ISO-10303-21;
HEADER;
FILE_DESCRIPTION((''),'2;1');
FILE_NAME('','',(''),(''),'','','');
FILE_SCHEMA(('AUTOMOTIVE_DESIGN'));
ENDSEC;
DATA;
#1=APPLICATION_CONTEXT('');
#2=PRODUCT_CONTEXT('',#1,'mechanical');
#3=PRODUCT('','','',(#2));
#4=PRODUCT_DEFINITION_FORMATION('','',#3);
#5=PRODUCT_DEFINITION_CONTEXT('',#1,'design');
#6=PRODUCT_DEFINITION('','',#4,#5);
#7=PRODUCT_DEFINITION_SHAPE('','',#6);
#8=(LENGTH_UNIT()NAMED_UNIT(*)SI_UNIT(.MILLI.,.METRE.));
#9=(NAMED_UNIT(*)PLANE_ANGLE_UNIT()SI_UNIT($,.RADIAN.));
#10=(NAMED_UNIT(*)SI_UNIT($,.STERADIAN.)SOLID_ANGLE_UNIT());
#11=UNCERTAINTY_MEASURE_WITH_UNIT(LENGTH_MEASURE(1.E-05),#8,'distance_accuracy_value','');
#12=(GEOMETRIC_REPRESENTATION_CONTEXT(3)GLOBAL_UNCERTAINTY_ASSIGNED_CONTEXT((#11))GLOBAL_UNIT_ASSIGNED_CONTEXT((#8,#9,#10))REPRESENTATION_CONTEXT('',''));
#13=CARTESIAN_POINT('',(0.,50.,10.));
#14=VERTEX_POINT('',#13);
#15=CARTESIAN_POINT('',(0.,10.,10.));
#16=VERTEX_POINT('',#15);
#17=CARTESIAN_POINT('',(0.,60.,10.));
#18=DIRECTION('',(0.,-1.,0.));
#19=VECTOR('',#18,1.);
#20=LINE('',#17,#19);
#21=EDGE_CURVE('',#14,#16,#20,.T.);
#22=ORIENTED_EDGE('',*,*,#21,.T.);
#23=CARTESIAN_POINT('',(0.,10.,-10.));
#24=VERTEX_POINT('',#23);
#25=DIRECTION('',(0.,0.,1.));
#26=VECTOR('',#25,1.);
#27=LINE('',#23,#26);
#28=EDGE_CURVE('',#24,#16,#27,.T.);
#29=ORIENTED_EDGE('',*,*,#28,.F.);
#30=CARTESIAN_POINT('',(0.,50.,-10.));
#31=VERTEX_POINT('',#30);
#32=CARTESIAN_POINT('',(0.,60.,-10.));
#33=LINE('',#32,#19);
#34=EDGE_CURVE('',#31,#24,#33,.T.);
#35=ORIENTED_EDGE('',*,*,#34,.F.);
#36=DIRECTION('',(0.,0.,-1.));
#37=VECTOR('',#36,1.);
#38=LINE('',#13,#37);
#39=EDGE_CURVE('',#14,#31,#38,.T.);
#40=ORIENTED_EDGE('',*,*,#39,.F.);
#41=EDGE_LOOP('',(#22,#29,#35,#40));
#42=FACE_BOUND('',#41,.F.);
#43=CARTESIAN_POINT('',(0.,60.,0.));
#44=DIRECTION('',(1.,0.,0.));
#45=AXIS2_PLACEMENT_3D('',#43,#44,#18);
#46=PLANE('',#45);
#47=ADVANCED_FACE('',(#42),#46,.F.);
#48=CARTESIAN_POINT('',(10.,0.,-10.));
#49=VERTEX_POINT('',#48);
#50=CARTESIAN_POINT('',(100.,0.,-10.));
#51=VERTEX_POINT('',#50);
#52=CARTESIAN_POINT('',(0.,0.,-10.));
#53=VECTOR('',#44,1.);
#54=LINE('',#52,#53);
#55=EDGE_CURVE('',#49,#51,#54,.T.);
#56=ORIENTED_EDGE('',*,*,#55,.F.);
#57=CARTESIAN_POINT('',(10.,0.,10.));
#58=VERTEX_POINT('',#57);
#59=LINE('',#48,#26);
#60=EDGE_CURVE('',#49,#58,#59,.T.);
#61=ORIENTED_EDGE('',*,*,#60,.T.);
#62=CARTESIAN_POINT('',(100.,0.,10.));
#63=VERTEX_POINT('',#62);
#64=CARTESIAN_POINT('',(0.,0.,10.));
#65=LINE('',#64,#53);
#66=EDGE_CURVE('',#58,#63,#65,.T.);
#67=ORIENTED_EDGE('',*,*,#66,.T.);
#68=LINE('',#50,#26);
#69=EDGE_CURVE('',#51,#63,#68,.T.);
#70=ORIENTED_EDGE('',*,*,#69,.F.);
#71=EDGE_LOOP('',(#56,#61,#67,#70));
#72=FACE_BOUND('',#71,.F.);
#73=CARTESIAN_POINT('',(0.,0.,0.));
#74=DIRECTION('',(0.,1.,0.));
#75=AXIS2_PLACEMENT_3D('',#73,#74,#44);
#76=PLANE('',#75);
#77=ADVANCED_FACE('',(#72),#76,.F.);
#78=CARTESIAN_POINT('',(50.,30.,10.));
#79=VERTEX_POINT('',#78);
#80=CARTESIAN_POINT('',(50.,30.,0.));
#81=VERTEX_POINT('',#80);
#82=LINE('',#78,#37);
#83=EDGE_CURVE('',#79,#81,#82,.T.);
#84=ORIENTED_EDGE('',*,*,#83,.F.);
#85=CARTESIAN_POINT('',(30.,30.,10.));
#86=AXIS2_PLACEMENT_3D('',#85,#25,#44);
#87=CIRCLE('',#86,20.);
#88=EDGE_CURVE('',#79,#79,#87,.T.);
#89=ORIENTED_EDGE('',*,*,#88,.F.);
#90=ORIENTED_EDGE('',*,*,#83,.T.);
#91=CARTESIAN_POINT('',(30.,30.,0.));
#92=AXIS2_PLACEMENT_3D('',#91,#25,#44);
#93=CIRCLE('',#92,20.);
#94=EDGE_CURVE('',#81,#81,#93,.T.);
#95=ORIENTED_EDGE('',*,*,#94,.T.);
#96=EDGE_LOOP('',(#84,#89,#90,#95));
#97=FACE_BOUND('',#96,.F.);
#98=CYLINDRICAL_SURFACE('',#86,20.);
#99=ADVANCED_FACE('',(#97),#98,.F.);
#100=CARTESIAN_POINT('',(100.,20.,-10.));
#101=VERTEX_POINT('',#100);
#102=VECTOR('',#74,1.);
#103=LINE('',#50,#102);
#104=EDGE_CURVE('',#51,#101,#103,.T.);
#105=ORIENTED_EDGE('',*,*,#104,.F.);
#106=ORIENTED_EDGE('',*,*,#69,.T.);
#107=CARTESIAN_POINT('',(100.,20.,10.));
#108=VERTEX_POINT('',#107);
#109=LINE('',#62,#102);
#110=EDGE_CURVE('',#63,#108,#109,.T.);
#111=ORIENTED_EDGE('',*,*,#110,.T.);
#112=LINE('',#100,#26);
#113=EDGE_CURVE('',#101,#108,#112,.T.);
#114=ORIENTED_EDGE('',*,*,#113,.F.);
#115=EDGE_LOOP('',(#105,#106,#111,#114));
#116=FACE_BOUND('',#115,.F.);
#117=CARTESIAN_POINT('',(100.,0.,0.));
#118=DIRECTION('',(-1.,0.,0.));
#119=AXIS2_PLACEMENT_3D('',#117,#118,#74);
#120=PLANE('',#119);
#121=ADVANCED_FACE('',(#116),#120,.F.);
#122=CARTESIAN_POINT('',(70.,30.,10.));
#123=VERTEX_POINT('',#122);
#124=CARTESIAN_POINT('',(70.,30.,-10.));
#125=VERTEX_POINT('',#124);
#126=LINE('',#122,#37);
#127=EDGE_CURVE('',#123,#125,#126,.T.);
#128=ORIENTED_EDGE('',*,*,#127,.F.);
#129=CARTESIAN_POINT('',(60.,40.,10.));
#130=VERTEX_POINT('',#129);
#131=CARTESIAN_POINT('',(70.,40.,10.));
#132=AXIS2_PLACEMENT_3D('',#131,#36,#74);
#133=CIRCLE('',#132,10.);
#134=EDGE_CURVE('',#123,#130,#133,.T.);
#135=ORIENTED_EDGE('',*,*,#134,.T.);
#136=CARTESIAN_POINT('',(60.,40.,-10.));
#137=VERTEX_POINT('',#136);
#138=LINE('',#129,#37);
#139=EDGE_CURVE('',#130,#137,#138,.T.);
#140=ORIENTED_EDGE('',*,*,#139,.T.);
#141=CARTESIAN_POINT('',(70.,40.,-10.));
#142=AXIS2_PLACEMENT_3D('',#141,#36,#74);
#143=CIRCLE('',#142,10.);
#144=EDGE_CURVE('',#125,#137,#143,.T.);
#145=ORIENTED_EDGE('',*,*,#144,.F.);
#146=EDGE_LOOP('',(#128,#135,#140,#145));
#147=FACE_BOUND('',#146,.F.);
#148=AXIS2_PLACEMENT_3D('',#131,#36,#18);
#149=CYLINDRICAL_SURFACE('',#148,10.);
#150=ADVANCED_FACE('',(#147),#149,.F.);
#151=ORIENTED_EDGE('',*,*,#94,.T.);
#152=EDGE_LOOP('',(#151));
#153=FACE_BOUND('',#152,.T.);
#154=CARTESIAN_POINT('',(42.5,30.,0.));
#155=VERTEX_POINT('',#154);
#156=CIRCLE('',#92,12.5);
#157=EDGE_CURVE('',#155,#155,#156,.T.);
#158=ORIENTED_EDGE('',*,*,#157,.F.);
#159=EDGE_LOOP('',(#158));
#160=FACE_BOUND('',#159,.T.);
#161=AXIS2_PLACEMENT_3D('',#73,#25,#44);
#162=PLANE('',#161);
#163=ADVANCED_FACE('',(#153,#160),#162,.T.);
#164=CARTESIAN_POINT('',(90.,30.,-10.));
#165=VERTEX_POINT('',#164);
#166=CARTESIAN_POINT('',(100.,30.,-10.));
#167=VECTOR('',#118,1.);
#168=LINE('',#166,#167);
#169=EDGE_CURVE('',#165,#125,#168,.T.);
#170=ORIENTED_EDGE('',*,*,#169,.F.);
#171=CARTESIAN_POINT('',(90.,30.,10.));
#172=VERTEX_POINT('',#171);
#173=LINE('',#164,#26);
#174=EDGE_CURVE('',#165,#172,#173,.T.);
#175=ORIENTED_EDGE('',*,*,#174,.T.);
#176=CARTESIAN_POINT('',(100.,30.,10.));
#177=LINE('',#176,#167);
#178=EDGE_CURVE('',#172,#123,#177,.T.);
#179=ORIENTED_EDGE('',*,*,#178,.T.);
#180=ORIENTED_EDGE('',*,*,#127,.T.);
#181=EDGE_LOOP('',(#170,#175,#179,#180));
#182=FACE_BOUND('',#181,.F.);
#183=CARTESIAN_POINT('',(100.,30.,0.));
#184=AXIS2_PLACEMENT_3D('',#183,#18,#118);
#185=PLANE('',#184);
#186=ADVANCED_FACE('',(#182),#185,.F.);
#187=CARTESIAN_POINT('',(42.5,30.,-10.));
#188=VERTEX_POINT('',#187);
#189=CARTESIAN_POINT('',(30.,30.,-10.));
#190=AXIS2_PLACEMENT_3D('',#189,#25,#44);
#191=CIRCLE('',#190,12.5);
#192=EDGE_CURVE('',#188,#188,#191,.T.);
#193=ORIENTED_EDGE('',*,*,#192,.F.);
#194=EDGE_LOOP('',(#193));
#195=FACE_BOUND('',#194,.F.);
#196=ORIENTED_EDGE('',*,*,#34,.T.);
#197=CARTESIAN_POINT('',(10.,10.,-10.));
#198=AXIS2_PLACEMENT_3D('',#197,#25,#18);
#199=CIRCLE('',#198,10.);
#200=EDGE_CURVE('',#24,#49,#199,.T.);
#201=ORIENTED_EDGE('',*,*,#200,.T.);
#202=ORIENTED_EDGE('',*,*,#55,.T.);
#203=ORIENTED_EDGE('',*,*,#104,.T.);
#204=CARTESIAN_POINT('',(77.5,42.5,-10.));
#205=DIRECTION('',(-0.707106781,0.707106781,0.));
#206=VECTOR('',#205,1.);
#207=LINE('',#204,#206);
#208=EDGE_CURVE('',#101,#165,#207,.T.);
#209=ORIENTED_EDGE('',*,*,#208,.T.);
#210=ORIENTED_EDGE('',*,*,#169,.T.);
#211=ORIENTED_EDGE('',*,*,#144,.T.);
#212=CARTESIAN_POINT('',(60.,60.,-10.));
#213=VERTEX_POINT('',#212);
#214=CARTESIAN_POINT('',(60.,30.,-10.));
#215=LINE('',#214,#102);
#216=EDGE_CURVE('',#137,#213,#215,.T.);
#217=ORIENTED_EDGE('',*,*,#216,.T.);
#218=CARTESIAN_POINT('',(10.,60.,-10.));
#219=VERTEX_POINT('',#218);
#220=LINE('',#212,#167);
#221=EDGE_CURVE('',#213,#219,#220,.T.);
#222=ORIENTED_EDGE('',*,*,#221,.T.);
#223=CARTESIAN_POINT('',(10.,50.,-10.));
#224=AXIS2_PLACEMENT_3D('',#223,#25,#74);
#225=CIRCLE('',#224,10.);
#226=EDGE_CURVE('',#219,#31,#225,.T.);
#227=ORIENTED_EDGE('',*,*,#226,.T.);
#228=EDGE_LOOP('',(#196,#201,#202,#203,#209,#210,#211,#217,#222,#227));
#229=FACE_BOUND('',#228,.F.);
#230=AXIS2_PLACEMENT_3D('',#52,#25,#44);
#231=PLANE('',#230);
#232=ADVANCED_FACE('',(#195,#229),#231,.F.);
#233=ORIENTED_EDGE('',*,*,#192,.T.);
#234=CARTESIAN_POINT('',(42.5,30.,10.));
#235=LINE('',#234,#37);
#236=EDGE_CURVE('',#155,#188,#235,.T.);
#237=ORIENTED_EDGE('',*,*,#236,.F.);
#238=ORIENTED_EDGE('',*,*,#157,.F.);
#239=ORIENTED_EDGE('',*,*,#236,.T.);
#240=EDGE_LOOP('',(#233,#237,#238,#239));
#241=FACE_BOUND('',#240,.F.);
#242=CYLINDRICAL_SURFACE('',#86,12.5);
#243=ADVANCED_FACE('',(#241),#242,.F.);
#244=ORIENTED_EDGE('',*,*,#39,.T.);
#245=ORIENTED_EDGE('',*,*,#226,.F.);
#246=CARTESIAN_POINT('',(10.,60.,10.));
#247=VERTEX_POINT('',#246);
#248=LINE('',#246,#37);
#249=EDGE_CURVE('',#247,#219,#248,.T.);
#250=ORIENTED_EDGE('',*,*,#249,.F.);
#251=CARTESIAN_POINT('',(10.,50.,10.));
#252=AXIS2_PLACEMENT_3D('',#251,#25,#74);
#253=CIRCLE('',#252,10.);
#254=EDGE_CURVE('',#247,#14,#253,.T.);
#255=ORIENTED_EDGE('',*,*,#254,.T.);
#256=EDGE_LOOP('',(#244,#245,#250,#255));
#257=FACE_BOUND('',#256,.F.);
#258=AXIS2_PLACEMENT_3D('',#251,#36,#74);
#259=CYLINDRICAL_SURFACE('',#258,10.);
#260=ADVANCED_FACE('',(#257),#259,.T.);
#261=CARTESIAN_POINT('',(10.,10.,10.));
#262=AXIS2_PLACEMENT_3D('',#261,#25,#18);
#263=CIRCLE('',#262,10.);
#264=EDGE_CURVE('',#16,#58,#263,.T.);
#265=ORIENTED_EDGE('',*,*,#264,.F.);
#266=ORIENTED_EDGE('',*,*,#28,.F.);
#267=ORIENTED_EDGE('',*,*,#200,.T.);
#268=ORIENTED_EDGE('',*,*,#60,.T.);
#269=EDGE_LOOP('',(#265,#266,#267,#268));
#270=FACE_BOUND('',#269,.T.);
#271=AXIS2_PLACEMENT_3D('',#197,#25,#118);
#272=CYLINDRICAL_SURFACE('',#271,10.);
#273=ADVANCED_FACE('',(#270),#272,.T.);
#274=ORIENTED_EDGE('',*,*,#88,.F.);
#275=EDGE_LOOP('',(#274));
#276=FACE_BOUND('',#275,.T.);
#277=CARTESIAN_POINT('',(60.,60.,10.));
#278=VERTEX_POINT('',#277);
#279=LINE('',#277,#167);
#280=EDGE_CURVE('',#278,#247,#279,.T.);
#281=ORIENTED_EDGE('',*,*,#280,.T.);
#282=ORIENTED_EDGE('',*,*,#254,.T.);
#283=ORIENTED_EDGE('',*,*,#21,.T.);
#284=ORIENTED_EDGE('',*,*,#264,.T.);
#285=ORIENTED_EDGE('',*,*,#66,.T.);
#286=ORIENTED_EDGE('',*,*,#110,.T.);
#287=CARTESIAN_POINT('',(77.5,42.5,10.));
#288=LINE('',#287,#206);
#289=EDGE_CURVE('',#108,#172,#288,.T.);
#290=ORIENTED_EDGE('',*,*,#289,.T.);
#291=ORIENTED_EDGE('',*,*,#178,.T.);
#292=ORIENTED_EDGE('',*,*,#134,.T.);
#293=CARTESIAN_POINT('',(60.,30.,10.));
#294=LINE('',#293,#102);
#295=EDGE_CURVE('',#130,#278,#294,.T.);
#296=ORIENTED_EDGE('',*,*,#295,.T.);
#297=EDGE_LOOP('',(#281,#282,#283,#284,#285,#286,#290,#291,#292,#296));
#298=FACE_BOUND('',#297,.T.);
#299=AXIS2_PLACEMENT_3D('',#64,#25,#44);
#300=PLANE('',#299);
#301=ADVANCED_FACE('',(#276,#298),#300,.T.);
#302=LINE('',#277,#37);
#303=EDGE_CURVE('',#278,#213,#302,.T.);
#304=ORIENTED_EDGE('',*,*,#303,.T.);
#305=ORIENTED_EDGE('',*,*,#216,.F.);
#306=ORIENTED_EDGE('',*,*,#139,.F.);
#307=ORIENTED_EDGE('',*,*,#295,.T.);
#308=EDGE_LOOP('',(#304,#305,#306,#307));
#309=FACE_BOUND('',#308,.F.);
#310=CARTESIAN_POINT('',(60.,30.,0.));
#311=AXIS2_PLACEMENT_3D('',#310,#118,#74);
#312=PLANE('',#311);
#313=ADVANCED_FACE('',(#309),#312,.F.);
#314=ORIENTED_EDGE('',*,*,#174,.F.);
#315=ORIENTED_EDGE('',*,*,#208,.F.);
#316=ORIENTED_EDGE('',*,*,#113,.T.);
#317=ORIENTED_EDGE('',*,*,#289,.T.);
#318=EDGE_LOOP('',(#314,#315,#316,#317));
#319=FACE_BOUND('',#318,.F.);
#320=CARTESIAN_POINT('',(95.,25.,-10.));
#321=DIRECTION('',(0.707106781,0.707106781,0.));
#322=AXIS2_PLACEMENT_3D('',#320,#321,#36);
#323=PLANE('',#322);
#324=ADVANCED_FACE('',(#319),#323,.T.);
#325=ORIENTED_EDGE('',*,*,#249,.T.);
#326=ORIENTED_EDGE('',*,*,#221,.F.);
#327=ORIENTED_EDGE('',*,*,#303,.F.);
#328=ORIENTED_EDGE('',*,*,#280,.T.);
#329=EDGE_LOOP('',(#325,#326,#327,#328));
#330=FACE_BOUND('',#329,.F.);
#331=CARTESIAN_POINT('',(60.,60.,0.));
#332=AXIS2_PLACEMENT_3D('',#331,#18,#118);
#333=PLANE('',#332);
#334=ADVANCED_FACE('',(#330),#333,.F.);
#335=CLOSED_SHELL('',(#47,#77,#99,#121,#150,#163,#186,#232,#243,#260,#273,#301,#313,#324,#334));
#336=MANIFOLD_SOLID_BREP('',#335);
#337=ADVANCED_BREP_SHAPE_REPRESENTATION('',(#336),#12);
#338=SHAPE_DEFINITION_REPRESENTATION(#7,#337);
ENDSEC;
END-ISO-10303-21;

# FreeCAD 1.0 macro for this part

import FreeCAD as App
import Part
import Sketcher
Q = App.Units.Quantity


def edges_at(feature, points):
    """Names of the edges that pass closest to the given points."""
    edges = feature.Shape.Edges
    near = lambda p: min(range(len(edges)), key=lambda i: edges[i].distToShape(Part.Vertex(*p))[0])
    return sorted({f"Edge{near(p) + 1}" for p in points})


def add_polygon(sketch, points):
    """Adds a closed chain of lines whose ends are joined by coincident constraints."""
    first, n = sketch.GeometryCount, len(points)
    for a, b in zip(points, points[1:] + points[:1]):
        sketch.addGeometry(Part.LineSegment(App.Vector(*a, 0), App.Vector(*b, 0)), False)
    for i in range(n):
        sketch.addConstraint(Sketcher.Constraint("Coincident", first + i, 2, first + (i + 1) % n, 1))

doc = App.newDocument("Part")
body = doc.addObject("PartDesign::Body", "Body")

sketch1 = body.newObject("Sketcher::SketchObject", "Sketch")
sketch1.AttachmentSupport = (doc.getObject("XY_Plane"), [""])
sketch1.MapMode = "FlatFace"
add_polygon(sketch1, [(0, 60), (0, 0), (100, 0), (100, 30), (60, 30), (60, 60)])
sketch1.addConstraint([
    Sketcher.Constraint("Vertical", 0),
    Sketcher.Constraint("Horizontal", 1),
    Sketcher.Constraint("Vertical", 2),
    Sketcher.Constraint("Horizontal", 3),
    Sketcher.Constraint("Vertical", 4),
    Sketcher.Constraint("Horizontal", 5),
    Sketcher.Constraint("Coincident", 0, 2, -1, 1),
    Sketcher.Constraint("Equal", 5, 0),
    Sketcher.Constraint("Equal", 2, 4),
    Sketcher.Constraint("DistanceX", 1, 1, 1, 2, Q("100 mm")),
    Sketcher.Constraint("DistanceX", 5, 2, 5, 1, Q("60 mm")),
])
pad1 = body.newObject("PartDesign::Pad", "Pad")
pad1.Profile = sketch1
pad1.Length = 20
pad1.Midplane = True
doc.recompute()

chamfer = body.newObject("PartDesign::Chamfer", "Chamfer")
chamfer.Base = (pad1, edges_at(pad1, [(100, 30, 0)]))
chamfer.Size = 10
doc.recompute()

fillet = body.newObject("PartDesign::Fillet", "Fillet")
fillet.Base = (chamfer, edges_at(chamfer, [(60, 30, 0)]))
fillet.Radius = 10
doc.recompute()

fillet2 = body.newObject("PartDesign::Fillet", "Fillet001")
fillet2.Base = (fillet, edges_at(fillet, [(0, 60, 0)]))
fillet2.Radius = 10
doc.recompute()

fillet3 = body.newObject("PartDesign::Fillet", "Fillet002")
fillet3.Base = (fillet2, edges_at(fillet2, [(0, 0, 0)]))
fillet3.Radius = 10

sketch2 = body.newObject("Sketcher::SketchObject", "Sketch001")
sketch2.AttachmentSupport = (doc.getObject("XY_Plane"), [""])
sketch2.MapMode = "FlatFace"
sketch2.AttachmentOffset = App.Placement(App.Vector(0, 0, 10), App.Rotation())
sketch2.addGeometry(Part.Circle(App.Vector(30, 30, 0), App.Vector(0, 0, 1), 20), False)
sketch2.addConstraint([
    Sketcher.Constraint("Diameter", 0, Q("40 mm")),
    Sketcher.Constraint("DistanceX", -1, 1, 0, 3, Q("30 mm")),
    Sketcher.Constraint("DistanceY", -1, 1, 0, 3, Q("30 mm")),
])
pocket1 = body.newObject("PartDesign::Pocket", "Pocket")
pocket1.Profile = sketch2
pocket1.Length = 10

sketch3 = body.newObject("Sketcher::SketchObject", "Sketch002")
sketch3.AttachmentSupport = (doc.getObject("XY_Plane"), [""])
sketch3.MapMode = "FlatFace"
sketch3.AttachmentOffset = App.Placement(App.Vector(0, 0, 10), App.Rotation())
sketch3.addGeometry(Part.Circle(App.Vector(30, 30, 0), App.Vector(0, 0, 1), 12.5), False)
sketch3.addConstraint([
    Sketcher.Constraint("Diameter", 0, Q("25 mm")),
    Sketcher.Constraint("DistanceX", -1, 1, 0, 3, Q("30 mm")),
    Sketcher.Constraint("DistanceY", -1, 1, 0, 3, Q("30 mm")),
])
pocket2 = body.newObject("PartDesign::Pocket", "Pocket001")
pocket2.Profile = sketch3
pocket2.Length = 20

doc.recompute()
